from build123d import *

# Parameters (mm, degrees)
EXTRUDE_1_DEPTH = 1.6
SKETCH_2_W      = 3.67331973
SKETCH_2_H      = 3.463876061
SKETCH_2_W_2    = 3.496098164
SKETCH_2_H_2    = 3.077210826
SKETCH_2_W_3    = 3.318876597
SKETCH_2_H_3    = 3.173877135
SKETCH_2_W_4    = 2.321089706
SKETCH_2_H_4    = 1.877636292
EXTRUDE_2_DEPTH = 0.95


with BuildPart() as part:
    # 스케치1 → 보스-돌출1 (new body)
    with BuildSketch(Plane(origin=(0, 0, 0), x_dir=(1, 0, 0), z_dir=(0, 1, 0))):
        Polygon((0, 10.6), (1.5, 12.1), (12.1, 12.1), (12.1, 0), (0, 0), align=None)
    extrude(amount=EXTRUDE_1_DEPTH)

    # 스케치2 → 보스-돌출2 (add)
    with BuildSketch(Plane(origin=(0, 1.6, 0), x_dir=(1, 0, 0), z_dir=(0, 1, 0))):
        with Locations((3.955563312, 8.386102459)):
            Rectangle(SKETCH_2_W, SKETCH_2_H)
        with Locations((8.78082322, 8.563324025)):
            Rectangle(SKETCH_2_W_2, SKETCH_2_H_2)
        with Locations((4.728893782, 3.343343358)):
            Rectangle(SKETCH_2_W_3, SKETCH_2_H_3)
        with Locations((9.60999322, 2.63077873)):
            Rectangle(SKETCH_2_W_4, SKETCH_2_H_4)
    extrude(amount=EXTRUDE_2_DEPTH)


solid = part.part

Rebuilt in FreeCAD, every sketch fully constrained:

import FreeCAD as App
import Part
import Sketcher
from FreeCAD import Vector

doc = App.newDocument("Part")
params = doc.addObject("Spreadsheet::Sheet", "Params")
for row, (alias, value) in enumerate([
    ("sketch1_width", "12.1 mm"),
    ("sketch1_width2", "10.6 mm"),
    ("pad1_length", "1.6 mm"),
    ("pad2_length", "0.95 mm"),
], start=1):
    params.set(f"A{row}", alias)
    params.set(f"B{row}", "=" + value)
    params.setAlias(f"B{row}", alias)

body = doc.addObject("PartDesign::Body", "Body")

# Sketch on XZ plane
sketch1 = body.newObject("Sketcher::SketchObject", "Sketch")
sketch1.AttachmentSupport = (doc.getObject("XZ_Plane"), [""])
sketch1.MapMode = "FlatFace"
sketch1.addGeometry([
    Part.LineSegment(Vector(1.5, -12.1, 0), Vector(0, -10.6, 0)),  # 0
    Part.LineSegment(Vector(0, -10.6, 0), Vector(0, 0, 0)),  # 1
    Part.LineSegment(Vector(0, 0, 0), Vector(12.1, 0, 0)),  # 2
    Part.LineSegment(Vector(12.1, 0, 0), Vector(12.1, -12.1, 0)),  # 3
    Part.LineSegment(Vector(12.1, -12.1, 0), Vector(1.5, -12.1, 0)),  # 4
], False)
sketch1.addConstraint([
    Sketcher.Constraint("Coincident", 0, 2, 1, 1),
    Sketcher.Constraint("Coincident", 1, 2, 2, 1),
    Sketcher.Constraint("Coincident", 2, 2, 3, 1),
    Sketcher.Constraint("Coincident", 3, 2, 4, 1),
    Sketcher.Constraint("Coincident", 4, 2, 0, 1),
    Sketcher.Constraint("Vertical", 1),
    Sketcher.Constraint("Horizontal", 2),
    Sketcher.Constraint("Vertical", 3),
    Sketcher.Constraint("Horizontal", 4),
    Sketcher.Constraint("Coincident", 1, 2, -1, 1),
    Sketcher.Constraint("Equal", 4, 1),
    Sketcher.Constraint("Equal", 2, 3),
    Sketcher.Constraint("DistanceX", 2, 1, 2, 2, 12.1),
    Sketcher.Constraint("DistanceX", 4, 2, 4, 1, 10.6),
])
sketch1.setExpression("Constraints[12]", "Params.sketch1_width")
sketch1.setExpression("Constraints[13]", "Params.sketch1_width2")
pad1 = body.newObject("PartDesign::Pad", "Pad")
pad1.Profile = sketch1
pad1.setExpression("Length", "Params.pad1_length")
pad1.Reversed = True

# Sketch on XZ plane
sketch2 = body.newObject("Sketcher::SketchObject", "Sketch001")
sketch2.AttachmentSupport = (doc.getObject("XZ_Plane"), [""])
sketch2.MapMode = "FlatFace"
sketch2.AttachmentOffset = App.Placement(Vector(0, 0, -1.6), App.Rotation())
sketch2.addGeometry([
    Part.LineSegment(Vector(2.118903, -10.11804, 0), Vector(2.118903, -6.654164, 0)),  # 0
    Part.LineSegment(Vector(2.118903, -6.654164, 0), Vector(5.792223, -6.654164, 0)),  # 1
    Part.LineSegment(Vector(5.792223, -6.654164, 0), Vector(5.792223, -10.11804, 0)),  # 2
    Part.LineSegment(Vector(5.792223, -10.11804, 0), Vector(2.118903, -10.11804, 0)),  # 3
    Part.LineSegment(Vector(7.032774, -10.101929, 0), Vector(7.032774, -7.024719, 0)),  # 4
    Part.LineSegment(Vector(7.032774, -7.024719, 0), Vector(10.528872, -7.024719, 0)),  # 5
    Part.LineSegment(Vector(10.528872, -7.024719, 0), Vector(10.528872, -10.101929, 0)),  # 6
    Part.LineSegment(Vector(10.528872, -10.101929, 0), Vector(7.032774, -10.101929, 0)),  # 7
    Part.LineSegment(Vector(3.069455, -4.930282, 0), Vector(3.069455, -1.756405, 0)),  # 8
    Part.LineSegment(Vector(3.069455, -1.756405, 0), Vector(6.388332, -1.756405, 0)),  # 9
    Part.LineSegment(Vector(6.388332, -1.756405, 0), Vector(6.388332, -4.930282, 0)),  # 10
    Part.LineSegment(Vector(6.388332, -4.930282, 0), Vector(3.069455, -4.930282, 0)),  # 11
    Part.LineSegment(Vector(8.449448, -3.569597, 0), Vector(8.449448, -1.691961, 0)),  # 12
    Part.LineSegment(Vector(8.449448, -1.691961, 0), Vector(10.770538, -1.691961, 0)),  # 13
    Part.LineSegment(Vector(10.770538, -1.691961, 0), Vector(10.770538, -3.569597, 0)),  # 14
    Part.LineSegment(Vector(10.770538, -3.569597, 0), Vector(8.449448, -3.569597, 0)),  # 15
], False)
sketch2.addConstraint([
    Sketcher.Constraint("Coincident", 0, 2, 1, 1),
    Sketcher.Constraint("Coincident", 1, 2, 2, 1),
    Sketcher.Constraint("Coincident", 2, 2, 3, 1),
    Sketcher.Constraint("Coincident", 3, 2, 0, 1),
    Sketcher.Constraint("Coincident", 4, 2, 5, 1),
    Sketcher.Constraint("Coincident", 5, 2, 6, 1),
    Sketcher.Constraint("Coincident", 6, 2, 7, 1),
    Sketcher.Constraint("Coincident", 7, 2, 4, 1),
    Sketcher.Constraint("Coincident", 8, 2, 9, 1),
    Sketcher.Constraint("Coincident", 9, 2, 10, 1),
    Sketcher.Constraint("Coincident", 10, 2, 11, 1),
    Sketcher.Constraint("Coincident", 11, 2, 8, 1),
    Sketcher.Constraint("Coincident", 12, 2, 13, 1),
    Sketcher.Constraint("Coincident", 13, 2, 14, 1),
    Sketcher.Constraint("Coincident", 14, 2, 15, 1),
    Sketcher.Constraint("Coincident", 15, 2, 12, 1),
    Sketcher.Constraint("Vertical", 0),
    Sketcher.Constraint("Horizontal", 1),
    Sketcher.Constraint("Vertical", 2),
    Sketcher.Constraint("Horizontal", 3),
    Sketcher.Constraint("Vertical", 4),
    Sketcher.Constraint("Horizontal", 5),
    Sketcher.Constraint("Vertical", 6),
    Sketcher.Constraint("Horizontal", 7),
    Sketcher.Constraint("Vertical", 8),
    Sketcher.Constraint("Horizontal", 9),
    Sketcher.Constraint("Vertical", 10),
    Sketcher.Constraint("Horizontal", 11),
    Sketcher.Constraint("Vertical", 12),
    Sketcher.Constraint("Horizontal", 13),
    Sketcher.Constraint("Vertical", 14),
    Sketcher.Constraint("Horizontal", 15),
    Sketcher.Constraint("DistanceX", 5, 1, 5, 2, 3.496098),
    Sketcher.Constraint("DistanceX", 1, 1, 1, 2, 3.67332),
    Sketcher.Constraint("DistanceX", 13, 1, 13, 2, 2.32109),
    Sketcher.Constraint("DistanceY", 4, 1, 4, 2, 3.077211),
    Sketcher.Constraint("DistanceX", 9, 1, 9, 2, 3.318877),
    Sketcher.Constraint("DistanceY", 0, 1, 0, 2, 3.463876),
    Sketcher.Constraint("DistanceY", 8, 1, 8, 2, 3.173877),
    Sketcher.Constraint("DistanceY", 12, 1, 12, 2, 1.877636),
    Sketcher.Constraint("DistanceY", 2, 2, -1, 1, 10.11804),
    Sketcher.Constraint("DistanceY", 4, 2, -1, 1, 7.024719),
    Sketcher.Constraint("DistanceY", 10, 2, -1, 1, 4.930282),
    Sketcher.Constraint("DistanceX", -1, 1, 12, 2, 8.449448),
    Sketcher.Constraint("DistanceY", 12, 2, -1, 1, 1.691961),
    Sketcher.Constraint("DistanceX", 1, 2, 4, 2, 1.240551),
    Sketcher.Constraint("DistanceX", 8, 2, 4, 2, 3.963319),
    Sketcher.Constraint("DistanceX", -1, 1, 0, 2, 2.118903),
])
pad2 = body.newObject("PartDesign::Pad", "Pad001")
pad2.Profile = sketch2
pad2.setExpression("Length", "Params.pad2_length")
pad2.Reversed = True

doc.recompute()
